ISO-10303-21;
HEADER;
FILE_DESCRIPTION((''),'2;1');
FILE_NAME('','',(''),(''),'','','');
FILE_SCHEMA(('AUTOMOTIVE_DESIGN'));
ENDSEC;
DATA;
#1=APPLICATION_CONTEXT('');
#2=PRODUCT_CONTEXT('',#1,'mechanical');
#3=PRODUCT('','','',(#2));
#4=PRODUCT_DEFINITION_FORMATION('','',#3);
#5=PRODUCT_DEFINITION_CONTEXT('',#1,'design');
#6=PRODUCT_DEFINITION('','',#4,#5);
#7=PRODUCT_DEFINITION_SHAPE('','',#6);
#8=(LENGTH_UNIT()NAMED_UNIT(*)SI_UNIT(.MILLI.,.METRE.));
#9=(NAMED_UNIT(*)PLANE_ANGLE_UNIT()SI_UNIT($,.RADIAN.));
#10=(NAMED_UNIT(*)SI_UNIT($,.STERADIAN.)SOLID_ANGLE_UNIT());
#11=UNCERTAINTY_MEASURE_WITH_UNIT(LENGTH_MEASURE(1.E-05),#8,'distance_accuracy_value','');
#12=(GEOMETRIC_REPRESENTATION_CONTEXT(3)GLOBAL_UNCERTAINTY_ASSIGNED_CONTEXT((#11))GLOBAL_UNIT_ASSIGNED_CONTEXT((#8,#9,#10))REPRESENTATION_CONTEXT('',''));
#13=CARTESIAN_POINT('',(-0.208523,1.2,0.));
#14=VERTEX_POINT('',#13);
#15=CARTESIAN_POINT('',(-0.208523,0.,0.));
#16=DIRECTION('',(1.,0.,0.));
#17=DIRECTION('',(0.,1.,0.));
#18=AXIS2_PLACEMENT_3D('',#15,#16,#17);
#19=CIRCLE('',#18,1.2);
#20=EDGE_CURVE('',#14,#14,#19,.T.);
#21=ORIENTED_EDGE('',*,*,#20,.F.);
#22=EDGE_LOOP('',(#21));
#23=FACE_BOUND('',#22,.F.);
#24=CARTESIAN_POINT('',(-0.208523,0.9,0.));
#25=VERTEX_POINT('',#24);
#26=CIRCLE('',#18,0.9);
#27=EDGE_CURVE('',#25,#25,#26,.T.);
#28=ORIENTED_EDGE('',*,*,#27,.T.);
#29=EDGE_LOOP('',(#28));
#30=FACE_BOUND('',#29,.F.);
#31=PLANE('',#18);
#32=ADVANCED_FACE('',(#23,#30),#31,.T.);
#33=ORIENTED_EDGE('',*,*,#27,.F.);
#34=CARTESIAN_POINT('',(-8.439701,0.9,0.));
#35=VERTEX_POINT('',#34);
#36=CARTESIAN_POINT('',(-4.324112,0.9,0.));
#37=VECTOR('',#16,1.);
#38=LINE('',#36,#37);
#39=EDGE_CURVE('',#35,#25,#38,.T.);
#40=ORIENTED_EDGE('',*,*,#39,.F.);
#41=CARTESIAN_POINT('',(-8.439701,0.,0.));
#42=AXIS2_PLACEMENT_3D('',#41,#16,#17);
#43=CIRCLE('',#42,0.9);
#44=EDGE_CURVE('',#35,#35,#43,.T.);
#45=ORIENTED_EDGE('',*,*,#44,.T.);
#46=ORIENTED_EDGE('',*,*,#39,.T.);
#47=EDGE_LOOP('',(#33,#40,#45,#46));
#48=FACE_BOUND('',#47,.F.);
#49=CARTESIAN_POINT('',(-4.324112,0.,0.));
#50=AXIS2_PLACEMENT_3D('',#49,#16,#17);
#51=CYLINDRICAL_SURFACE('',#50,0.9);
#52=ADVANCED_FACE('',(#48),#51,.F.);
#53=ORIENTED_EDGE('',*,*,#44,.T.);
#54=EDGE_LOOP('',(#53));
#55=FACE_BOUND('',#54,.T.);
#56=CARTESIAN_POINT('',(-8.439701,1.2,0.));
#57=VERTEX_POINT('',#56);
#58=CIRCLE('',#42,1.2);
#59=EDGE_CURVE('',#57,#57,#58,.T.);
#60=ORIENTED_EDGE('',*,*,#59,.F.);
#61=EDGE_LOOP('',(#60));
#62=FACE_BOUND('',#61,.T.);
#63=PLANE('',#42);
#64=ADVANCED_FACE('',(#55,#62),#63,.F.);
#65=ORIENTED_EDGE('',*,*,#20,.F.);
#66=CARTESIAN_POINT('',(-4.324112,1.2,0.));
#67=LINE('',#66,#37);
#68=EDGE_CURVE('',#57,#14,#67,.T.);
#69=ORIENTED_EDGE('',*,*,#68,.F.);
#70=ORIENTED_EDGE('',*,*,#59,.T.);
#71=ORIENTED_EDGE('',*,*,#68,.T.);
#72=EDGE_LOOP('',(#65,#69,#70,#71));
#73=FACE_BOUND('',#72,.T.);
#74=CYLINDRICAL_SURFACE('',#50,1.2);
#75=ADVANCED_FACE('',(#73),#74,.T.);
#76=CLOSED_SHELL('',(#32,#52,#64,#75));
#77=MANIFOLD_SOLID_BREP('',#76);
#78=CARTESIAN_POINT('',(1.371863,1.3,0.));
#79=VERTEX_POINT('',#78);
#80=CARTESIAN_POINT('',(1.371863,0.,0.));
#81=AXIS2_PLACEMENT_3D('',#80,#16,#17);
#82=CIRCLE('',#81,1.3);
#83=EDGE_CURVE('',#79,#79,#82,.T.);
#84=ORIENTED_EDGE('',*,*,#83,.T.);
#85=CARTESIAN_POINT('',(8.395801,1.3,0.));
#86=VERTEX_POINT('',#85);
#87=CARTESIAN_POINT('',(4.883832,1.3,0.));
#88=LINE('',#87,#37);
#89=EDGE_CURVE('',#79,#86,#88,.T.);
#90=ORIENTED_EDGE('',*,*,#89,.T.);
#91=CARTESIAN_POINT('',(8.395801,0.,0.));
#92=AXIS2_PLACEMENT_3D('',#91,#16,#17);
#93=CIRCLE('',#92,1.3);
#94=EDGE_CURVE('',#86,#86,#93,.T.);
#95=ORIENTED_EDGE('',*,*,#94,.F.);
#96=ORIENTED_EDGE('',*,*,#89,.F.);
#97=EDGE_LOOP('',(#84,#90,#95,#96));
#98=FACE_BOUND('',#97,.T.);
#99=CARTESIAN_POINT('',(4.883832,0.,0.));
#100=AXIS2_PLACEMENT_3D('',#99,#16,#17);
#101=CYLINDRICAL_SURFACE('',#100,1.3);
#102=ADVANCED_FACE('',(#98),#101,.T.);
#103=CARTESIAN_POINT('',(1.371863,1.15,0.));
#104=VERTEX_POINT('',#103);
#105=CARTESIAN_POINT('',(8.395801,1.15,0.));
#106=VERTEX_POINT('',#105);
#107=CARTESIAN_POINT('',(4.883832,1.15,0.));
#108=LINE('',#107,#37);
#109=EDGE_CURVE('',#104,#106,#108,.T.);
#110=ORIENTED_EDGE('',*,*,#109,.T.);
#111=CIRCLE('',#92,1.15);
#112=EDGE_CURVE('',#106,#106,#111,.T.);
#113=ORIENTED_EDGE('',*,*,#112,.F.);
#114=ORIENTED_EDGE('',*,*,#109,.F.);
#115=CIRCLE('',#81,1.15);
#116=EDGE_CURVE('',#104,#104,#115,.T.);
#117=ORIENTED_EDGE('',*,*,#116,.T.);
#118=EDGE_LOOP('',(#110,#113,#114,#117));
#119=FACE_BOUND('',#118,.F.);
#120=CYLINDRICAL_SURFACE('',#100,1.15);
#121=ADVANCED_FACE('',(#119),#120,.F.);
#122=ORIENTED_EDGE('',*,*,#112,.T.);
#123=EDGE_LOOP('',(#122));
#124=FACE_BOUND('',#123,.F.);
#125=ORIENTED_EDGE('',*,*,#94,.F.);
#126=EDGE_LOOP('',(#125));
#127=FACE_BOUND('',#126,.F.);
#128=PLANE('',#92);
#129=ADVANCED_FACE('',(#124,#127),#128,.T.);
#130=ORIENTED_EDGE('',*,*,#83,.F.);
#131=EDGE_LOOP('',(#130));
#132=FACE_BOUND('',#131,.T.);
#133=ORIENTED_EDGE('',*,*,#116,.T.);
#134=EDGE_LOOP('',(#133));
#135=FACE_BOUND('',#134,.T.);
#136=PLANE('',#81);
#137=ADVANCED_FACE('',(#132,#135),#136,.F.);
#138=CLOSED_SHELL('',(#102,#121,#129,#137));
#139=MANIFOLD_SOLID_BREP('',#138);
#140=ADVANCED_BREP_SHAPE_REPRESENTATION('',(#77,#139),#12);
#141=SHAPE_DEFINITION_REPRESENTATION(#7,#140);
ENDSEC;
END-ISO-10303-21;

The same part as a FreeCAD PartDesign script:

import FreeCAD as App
import Part
import Sketcher
from FreeCAD import Vector

doc = App.newDocument("Part")
body = doc.addObject("PartDesign::Body", "Body")
body.AllowCompound = True

sketch1 = doc.addObject("Sketcher::SketchObject", "Sketch")
body.addObject(sketch1)
sketch1.AttachmentSupport = (doc.XY_Plane, [""])
sketch1.MapMode = "FlatFace"
sketch1.addGeometry([
    Part.LineSegment(Vector(-8.44, 1.2, 0), Vector(-8.44, 0.9, 0)),
    Part.LineSegment(Vector(-8.44, 0.9, 0), Vector(-0.21, 0.9, 0)),
    Part.LineSegment(Vector(-0.21, 0.9, 0), Vector(-0.21, 1.2, 0)),
    Part.LineSegment(Vector(-0.21, 1.2, 0), Vector(-8.44, 1.2, 0)),
    Part.LineSegment(Vector(1.37, 1.3, 0), Vector(1.37, 1.15, 0)),
    Part.LineSegment(Vector(1.37, 1.15, 0), Vector(8.4, 1.15, 0)),
    Part.LineSegment(Vector(8.4, 1.15, 0), Vector(8.4, 1.3, 0)),
    Part.LineSegment(Vector(8.4, 1.3, 0), Vector(1.37, 1.3, 0)),
], False)
sketch1.addConstraint([
    Sketcher.Constraint("Coincident", 0, 2, 1, 1),
    Sketcher.Constraint("Coincident", 1, 2, 2, 1),
    Sketcher.Constraint("Coincident", 2, 2, 3, 1),
    Sketcher.Constraint("Coincident", 3, 2, 0, 1),
    Sketcher.Constraint("Coincident", 4, 2, 5, 1),
    Sketcher.Constraint("Coincident", 5, 2, 6, 1),
    Sketcher.Constraint("Coincident", 6, 2, 7, 1),
    Sketcher.Constraint("Coincident", 7, 2, 4, 1),
    Sketcher.Constraint("Vertical", 0),
    Sketcher.Constraint("Horizontal", 1),
    Sketcher.Constraint("Vertical", 2),
    Sketcher.Constraint("Horizontal", 3),
    Sketcher.Constraint("Vertical", 4),
    Sketcher.Constraint("Horizontal", 5),
    Sketcher.Constraint("Vertical", 6),
    Sketcher.Constraint("Horizontal", 7),
    Sketcher.Constraint("DistanceY", 0, 2, 0, 1, 0.3),
    Sketcher.Constraint("DistanceY", 4, 2, 4, 1, 0.15),
    Sketcher.Constraint("DistanceY", -1, 1, 0, 2, 0.9),
    Sketcher.Constraint("DistanceY", -1, 1, 6, 2, 1.3),
    Sketcher.Constraint("DistanceX", 5, 1, 5, 2, 7.023938),
    Sketcher.Constraint("DistanceX", 0, 2, -1, 1, 8.439701),
    Sketcher.Constraint("DistanceX", -1, 1, 5, 2, 8.395801),
    Sketcher.Constraint("DistanceX", 1, 1, 1, 2, 8.231178),
])
revolution = doc.addObject("PartDesign::Revolution", "Revolution")
body.addObject(revolution)
revolution.Profile = sketch1
revolution.ReferenceAxis = (sketch1, ["H_Axis"])
revolution.Angle = 360

doc.recompute()
